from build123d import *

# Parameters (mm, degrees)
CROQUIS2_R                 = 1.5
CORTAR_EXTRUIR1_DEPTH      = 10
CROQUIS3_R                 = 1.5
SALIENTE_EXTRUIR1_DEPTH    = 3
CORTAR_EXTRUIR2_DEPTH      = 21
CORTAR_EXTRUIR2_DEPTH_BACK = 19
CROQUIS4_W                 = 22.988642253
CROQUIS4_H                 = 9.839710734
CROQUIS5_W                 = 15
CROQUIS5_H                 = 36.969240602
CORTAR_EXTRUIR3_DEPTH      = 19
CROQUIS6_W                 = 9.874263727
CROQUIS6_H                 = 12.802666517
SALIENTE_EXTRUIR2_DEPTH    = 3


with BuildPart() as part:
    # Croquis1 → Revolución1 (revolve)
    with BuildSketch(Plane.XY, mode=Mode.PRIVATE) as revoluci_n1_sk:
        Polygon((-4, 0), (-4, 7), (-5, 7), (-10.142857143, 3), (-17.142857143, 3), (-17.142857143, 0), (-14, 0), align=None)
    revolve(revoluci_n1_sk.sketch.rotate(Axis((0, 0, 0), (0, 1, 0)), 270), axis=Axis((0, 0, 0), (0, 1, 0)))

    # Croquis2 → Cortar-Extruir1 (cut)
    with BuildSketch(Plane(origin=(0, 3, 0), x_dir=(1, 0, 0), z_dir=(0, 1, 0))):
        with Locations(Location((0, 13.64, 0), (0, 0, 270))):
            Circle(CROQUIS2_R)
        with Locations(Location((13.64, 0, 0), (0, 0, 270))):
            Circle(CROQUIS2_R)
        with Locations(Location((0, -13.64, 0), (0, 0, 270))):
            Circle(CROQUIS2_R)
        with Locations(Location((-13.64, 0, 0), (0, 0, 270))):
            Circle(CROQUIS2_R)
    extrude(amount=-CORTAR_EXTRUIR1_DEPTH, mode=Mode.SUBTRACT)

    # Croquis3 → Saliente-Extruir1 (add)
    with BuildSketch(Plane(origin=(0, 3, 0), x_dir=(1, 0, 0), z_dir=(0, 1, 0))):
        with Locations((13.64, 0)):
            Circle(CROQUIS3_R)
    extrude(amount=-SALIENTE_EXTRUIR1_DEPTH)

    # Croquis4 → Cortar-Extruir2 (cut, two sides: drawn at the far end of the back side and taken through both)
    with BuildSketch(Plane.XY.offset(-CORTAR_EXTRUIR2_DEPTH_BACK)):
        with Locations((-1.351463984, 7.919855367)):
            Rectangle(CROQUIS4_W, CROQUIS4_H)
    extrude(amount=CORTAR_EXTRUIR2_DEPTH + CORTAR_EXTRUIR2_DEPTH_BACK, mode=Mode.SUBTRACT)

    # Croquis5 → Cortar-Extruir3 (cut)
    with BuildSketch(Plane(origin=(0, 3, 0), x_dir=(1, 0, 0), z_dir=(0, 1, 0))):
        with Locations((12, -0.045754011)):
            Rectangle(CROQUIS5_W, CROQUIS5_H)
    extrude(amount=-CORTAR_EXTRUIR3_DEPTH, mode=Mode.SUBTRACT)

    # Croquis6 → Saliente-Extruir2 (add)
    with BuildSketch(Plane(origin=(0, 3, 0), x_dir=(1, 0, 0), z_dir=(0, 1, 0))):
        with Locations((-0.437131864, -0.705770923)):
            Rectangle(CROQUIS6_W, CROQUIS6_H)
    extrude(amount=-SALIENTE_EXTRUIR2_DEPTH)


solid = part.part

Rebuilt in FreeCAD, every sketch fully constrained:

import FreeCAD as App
import Part
import Sketcher
from FreeCAD import Vector
Q = App.Units.Quantity

doc = App.newDocument("Part")
body = doc.addObject("PartDesign::Body", "Body")

# Sketch on XY plane
sketch1 = body.newObject("Sketcher::SketchObject", "Sketch")
sketch1.AttachmentSupport = (doc.getObject("XY_Plane"), [""])
sketch1.MapMode = "FlatFace"
sketch1.addGeometry(Part.LineSegment(Vector(-4, 0, 0), Vector(-4, 7, 0)), False)
sketch1.addGeometry(Part.LineSegment(Vector(-4, 7, 0), Vector(-5, 7, 0)), False)
sketch1.addGeometry(Part.LineSegment(Vector(-5, 7, 0), Vector(-10.1, 3, 0)), False)
sketch1.addGeometry(Part.LineSegment(Vector(-10.1, 3, 0), Vector(-17.1, 3, 0)), False)
sketch1.addGeometry(Part.LineSegment(Vector(-17.1, 3, 0), Vector(-17.1, 0, 0)), False)
sketch1.addGeometry(Part.LineSegment(Vector(-17.1, 0, 0), Vector(-4, 0, 0)), False)
sketch1.addConstraint(Sketcher.Constraint("Coincident", 0, 2, 1, 1))
sketch1.addConstraint(Sketcher.Constraint("Coincident", 1, 2, 2, 1))
sketch1.addConstraint(Sketcher.Constraint("Coincident", 2, 2, 3, 1))
sketch1.addConstraint(Sketcher.Constraint("Coincident", 3, 2, 4, 1))
sketch1.addConstraint(Sketcher.Constraint("Coincident", 4, 2, 5, 1))
sketch1.addConstraint(Sketcher.Constraint("Coincident", 5, 2, 0, 1))
sketch1.addConstraint(Sketcher.Constraint("Vertical", 0))
sketch1.addConstraint(Sketcher.Constraint("Horizontal", 1))
sketch1.addConstraint(Sketcher.Constraint("Horizontal", 3))
sketch1.addConstraint(Sketcher.Constraint("Vertical", 4))
sketch1.addConstraint(Sketcher.Constraint("Horizontal", 5))
sketch1.addConstraint(Sketcher.Constraint("PointOnObject", 4, 2, -1))
sketch1.addConstraint(Sketcher.Constraint("Equal", 3, 0))
sketch1.addConstraint(Sketcher.Constraint("DistanceX", 1, 2, 1, 1, Q("1 mm")))
sketch1.addConstraint(Sketcher.Constraint("DistanceX", 3, 2, 3, 1, Q("7 mm")))
sketch1.addConstraint(Sketcher.Constraint("DistanceY", 4, 2, 4, 1, Q("3 mm")))
sketch1.addConstraint(Sketcher.Constraint("DistanceX", 0, 2, -1, 1, Q("4 mm")))
sketch1.addConstraint(Sketcher.Constraint("Distance", 2, Q("6.515288 mm")))
revolution = body.newObject("PartDesign::Revolution", "Revolution")
revolution.Profile = sketch1
revolution.ReferenceAxis = (sketch1, ["V_Axis"])
revolution.Angle = 360

# Sketch on XZ plane
sketch2 = body.newObject("Sketcher::SketchObject", "Sketch001")
sketch2.AttachmentSupport = (doc.getObject("XZ_Plane"), [""])
sketch2.MapMode = "FlatFace"
sketch2.AttachmentOffset = App.Placement(Vector(0, 0, -3), App.Rotation())
sketch2.addGeometry(Part.Circle(Vector(0, -13.6, 0), Vector(0, 0, 1), 1.5), False)
sketch2.addGeometry(Part.Circle(Vector(13.6, 0, 0), Vector(0, 0, 1), 1.5), False)
sketch2.addGeometry(Part.Circle(Vector(0, 13.6, 0), Vector(0, 0, 1), 1.5), False)
sketch2.addGeometry(Part.Circle(Vector(-13.6, 0, 0), Vector(0, 0, 1), 1.5), False)
sketch2.addConstraint(Sketcher.Constraint("Equal", 0, 1))
sketch2.addConstraint(Sketcher.Constraint("Equal", 1, 2))
sketch2.addConstraint(Sketcher.Constraint("Equal", 2, 3))
sketch2.addConstraint(Sketcher.Constraint("Symmetric", 0, 3, 2, 3, -1, 1))
sketch2.addConstraint(Sketcher.Constraint("Symmetric", 1, 3, 3, 3, -1, 1))
sketch2.addConstraint(Sketcher.Constraint("PointOnObject", 0, 3, -2))
sketch2.addConstraint(Sketcher.Constraint("PointOnObject", 1, 3, -1))
sketch2.addConstraint(Sketcher.Constraint("Diameter", 0, Q("3 mm")))
sketch2.addConstraint(Sketcher.Constraint("DistanceY", 0, 3, -1, 1, Q("13.64 mm")))
sketch2.addConstraint(Sketcher.Constraint("DistanceX", -1, 1, 1, 3, Q("13.64 mm")))
pocket1 = body.newObject("PartDesign::Pocket", "Pocket")
pocket1.Profile = sketch2
pocket1.Length = 10
pocket1.Reversed = True

# Sketch on XZ plane
sketch3 = body.newObject("Sketcher::SketchObject", "Sketch002")
sketch3.AttachmentSupport = (doc.getObject("XZ_Plane"), [""])
sketch3.MapMode = "FlatFace"
sketch3.AttachmentOffset = App.Placement(Vector(0, 0, -3), App.Rotation())
sketch3.addGeometry(Part.Circle(Vector(13.6, 0, 0), Vector(0, 0, 1), 1.5), False)
sketch3.addConstraint(Sketcher.Constraint("PointOnObject", 0, 3, -1))
sketch3.addConstraint(Sketcher.Constraint("Diameter", 0, Q("3 mm")))
sketch3.addConstraint(Sketcher.Constraint("DistanceX", -1, 1, 0, 3, Q("13.64 mm")))
pad1 = body.newObject("PartDesign::Pad", "Pad")
pad1.Profile = sketch3
pad1.Length = 3

# Sketch on XY plane
sketch4 = body.newObject("Sketcher::SketchObject", "Sketch003")
sketch4.AttachmentSupport = (doc.getObject("XY_Plane"), [""])
sketch4.MapMode = "FlatFace"
sketch4.addGeometry(Part.LineSegment(Vector(-13, 13, 0), Vector(-13, 3, 0)), False)
sketch4.addGeometry(Part.LineSegment(Vector(-13, 3, 0), Vector(10, 3, 0)), False)
sketch4.addGeometry(Part.LineSegment(Vector(10, 3, 0), Vector(10, 13, 0)), False)
sketch4.addGeometry(Part.LineSegment(Vector(10, 13, 0), Vector(-13, 13, 0)), False)
sketch4.addConstraint(Sketcher.Constraint("Coincident", 0, 2, 1, 1))
sketch4.addConstraint(Sketcher.Constraint("Coincident", 1, 2, 2, 1))
sketch4.addConstraint(Sketcher.Constraint("Coincident", 2, 2, 3, 1))
sketch4.addConstraint(Sketcher.Constraint("Coincident", 3, 2, 0, 1))
sketch4.addConstraint(Sketcher.Constraint("Vertical", 0))
sketch4.addConstraint(Sketcher.Constraint("Horizontal", 1))
sketch4.addConstraint(Sketcher.Constraint("Vertical", 2))
sketch4.addConstraint(Sketcher.Constraint("Horizontal", 3))
sketch4.addConstraint(Sketcher.Constraint("DistanceY", -1, 1, 0, 2, Q("3 mm")))
sketch4.addConstraint(Sketcher.Constraint("DistanceY", 0, 2, 0, 1, Q("9.839711 mm")))
sketch4.addConstraint(Sketcher.Constraint("DistanceX", 1, 1, 1, 2, Q("22.988642 mm")))
sketch4.addConstraint(Sketcher.Constraint("DistanceX", 0, 2, -1, 1, Q("12.845785 mm")))
pocket2 = body.newObject("PartDesign::Pocket", "Pocket001")
pocket2.Profile = sketch4
pocket2.Type = "ThroughAll"
pocket2.Midplane = True

# Sketch on XZ plane
sketch5 = body.newObject("Sketcher::SketchObject", "Sketch004")
sketch5.AttachmentSupport = (doc.getObject("XZ_Plane"), [""])
sketch5.MapMode = "FlatFace"
sketch5.AttachmentOffset = App.Placement(Vector(0, 0, -3), App.Rotation())
sketch5.addGeometry(Part.LineSegment(Vector(4, -18, 0), Vector(4, 19, 0)), False)
sketch5.addGeometry(Part.LineSegment(Vector(4, 19, 0), Vector(20, 19, 0)), False)
sketch5.addGeometry(Part.LineSegment(Vector(20, 19, 0), Vector(20, -18, 0)), False)
sketch5.addGeometry(Part.LineSegment(Vector(20, -18, 0), Vector(4, -18, 0)), False)
sketch5.addConstraint(Sketcher.Constraint("Coincident", 0, 2, 1, 1))
sketch5.addConstraint(Sketcher.Constraint("Coincident", 1, 2, 2, 1))
sketch5.addConstraint(Sketcher.Constraint("Coincident", 2, 2, 3, 1))
sketch5.addConstraint(Sketcher.Constraint("Coincident", 3, 2, 0, 1))
sketch5.addConstraint(Sketcher.Constraint("Vertical", 0))
sketch5.addConstraint(Sketcher.Constraint("Horizontal", 1))
sketch5.addConstraint(Sketcher.Constraint("Vertical", 2))
sketch5.addConstraint(Sketcher.Constraint("Horizontal", 3))
sketch5.addConstraint(Sketcher.Constraint("DistanceX", 1, 1, 1, 2, Q("15 mm")))
sketch5.addConstraint(Sketcher.Constraint("DistanceX", -1, 1, 0, 2, Q("4.5 mm")))
sketch5.addConstraint(Sketcher.Constraint("DistanceY", 0, 1, 0, 2, Q("36.969241 mm")))
sketch5.addConstraint(Sketcher.Constraint("DistanceY", -1, 1, 0, 2, Q("18.530374 mm")))
pocket3 = body.newObject("PartDesign::Pocket", "Pocket002")
pocket3.Profile = sketch5
pocket3.Length = 19
pocket3.Reversed = True

# Sketch on XZ plane
sketch6 = body.newObject("Sketcher::SketchObject", "Sketch005")
sketch6.AttachmentSupport = (doc.getObject("XZ_Plane"), [""])
sketch6.MapMode = "FlatFace"
sketch6.AttachmentOffset = App.Placement(Vector(0, 0, -3), App.Rotation())
sketch6.addGeometry(Part.LineSegment(Vector(-5, -6, 0), Vector(-5, 7, 0)), False)
sketch6.addGeometry(Part.LineSegment(Vector(-5, 7, 0), Vector(4, 7, 0)), False)
sketch6.addGeometry(Part.LineSegment(Vector(4, 7, 0), Vector(4, -6, 0)), False)
sketch6.addGeometry(Part.LineSegment(Vector(4, -6, 0), Vector(-5, -6, 0)), False)
sketch6.addConstraint(Sketcher.Constraint("Coincident", 0, 2, 1, 1))
sketch6.addConstraint(Sketcher.Constraint("Coincident", 1, 2, 2, 1))
sketch6.addConstraint(Sketcher.Constraint("Coincident", 2, 2, 3, 1))
sketch6.addConstraint(Sketcher.Constraint("Coincident", 3, 2, 0, 1))
sketch6.addConstraint(Sketcher.Constraint("Vertical", 0))
sketch6.addConstraint(Sketcher.Constraint("Horizontal", 1))
sketch6.addConstraint(Sketcher.Constraint("Vertical", 2))
sketch6.addConstraint(Sketcher.Constraint("Horizontal", 3))
sketch6.addConstraint(Sketcher.Constraint("DistanceX", -1, 1, 1, 2, Q("4.5 mm")))
sketch6.addConstraint(Sketcher.Constraint("DistanceX", 1, 1, 1, 2, Q("9.874264 mm")))
sketch6.addConstraint(Sketcher.Constraint("DistanceY", 0, 1, 0, 2, Q("12.802667 mm")))
sketch6.addConstraint(Sketcher.Constraint("DistanceY", -1, 1, 0, 2, Q("7.107104 mm")))
pad2 = body.newObject("PartDesign::Pad", "Pad001")
pad2.Profile = sketch6
pad2.Length = 3

doc.recompute()
